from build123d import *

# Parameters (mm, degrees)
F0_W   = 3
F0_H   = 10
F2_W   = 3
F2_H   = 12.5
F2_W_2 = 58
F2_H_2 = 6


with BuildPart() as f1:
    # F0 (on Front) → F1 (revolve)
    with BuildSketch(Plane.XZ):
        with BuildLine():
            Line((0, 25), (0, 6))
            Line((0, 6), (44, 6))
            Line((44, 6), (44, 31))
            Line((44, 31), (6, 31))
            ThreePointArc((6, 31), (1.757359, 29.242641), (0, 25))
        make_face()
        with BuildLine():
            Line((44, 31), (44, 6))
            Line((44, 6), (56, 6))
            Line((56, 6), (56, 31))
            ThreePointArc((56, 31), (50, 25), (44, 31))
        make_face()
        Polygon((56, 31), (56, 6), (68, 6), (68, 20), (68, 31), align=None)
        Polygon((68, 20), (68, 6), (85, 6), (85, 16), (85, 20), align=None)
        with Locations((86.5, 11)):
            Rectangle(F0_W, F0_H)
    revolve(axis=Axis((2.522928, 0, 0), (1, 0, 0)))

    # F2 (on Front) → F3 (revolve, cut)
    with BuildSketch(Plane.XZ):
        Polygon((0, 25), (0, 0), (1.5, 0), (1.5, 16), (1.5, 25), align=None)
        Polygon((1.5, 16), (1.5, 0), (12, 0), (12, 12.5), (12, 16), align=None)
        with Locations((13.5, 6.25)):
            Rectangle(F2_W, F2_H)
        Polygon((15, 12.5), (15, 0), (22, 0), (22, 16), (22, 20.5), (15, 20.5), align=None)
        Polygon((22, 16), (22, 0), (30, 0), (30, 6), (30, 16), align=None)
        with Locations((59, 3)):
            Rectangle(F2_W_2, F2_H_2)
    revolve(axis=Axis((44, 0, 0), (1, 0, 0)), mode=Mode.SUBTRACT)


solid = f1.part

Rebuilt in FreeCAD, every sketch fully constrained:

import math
import FreeCAD as App
import Part
import Sketcher
from FreeCAD import Vector

doc = App.newDocument("Part")
body = doc.addObject("PartDesign::Body", "Body")

sketch1 = body.newObject("Sketcher::SketchObject", "Sketch")
sketch1.AttachmentSupport = (doc.getObject("XZ_Plane"), [""])
sketch1.MapMode = "FlatFace"
sketch1.addGeometry([
    Part.LineSegment(Vector(0, 25, 0), Vector(0, 6, 0)),
    Part.LineSegment(Vector(0, 6, 0), Vector(88, 6, 0)),
    Part.LineSegment(Vector(88, 6, 0), Vector(88, 16, 0)),
    Part.LineSegment(Vector(88, 16, 0), Vector(85, 16, 0)),
    Part.LineSegment(Vector(85, 16, 0), Vector(85, 20, 0)),
    Part.LineSegment(Vector(85, 20, 0), Vector(68, 20, 0)),
    Part.LineSegment(Vector(68, 20, 0), Vector(68, 31, 0)),
    Part.LineSegment(Vector(68, 31, 0), Vector(56, 31, 0)),
    Part.ArcOfCircle(Part.Circle(Vector(50, 31, 0), Vector(0, 0, 1), 6), math.radians(180), math.radians(360)),
    Part.LineSegment(Vector(44, 31, 0), Vector(6, 31, 0)),
    Part.ArcOfCircle(Part.Circle(Vector(5.999999, 25.000001, 0), Vector(0, 0, 1), 5.999999), math.radians(89.99999), math.radians(180.00001)),
], False)
sketch1.addConstraint([
    Sketcher.Constraint("Coincident", 0, 2, 1, 1),
    Sketcher.Constraint("Coincident", 1, 2, 2, 1),
    Sketcher.Constraint("Coincident", 2, 2, 3, 1),
    Sketcher.Constraint("Coincident", 3, 2, 4, 1),
    Sketcher.Constraint("Coincident", 4, 2, 5, 1),
    Sketcher.Constraint("Coincident", 5, 2, 6, 1),
    Sketcher.Constraint("Coincident", 6, 2, 7, 1),
    Sketcher.Constraint("Coincident", 7, 2, 8, 2),
    Sketcher.Constraint("Coincident", 8, 1, 9, 1),
    Sketcher.Constraint("Tangent", 9, 2, 10, 1),
    Sketcher.Constraint("Tangent", 10, 2, 0, 1),
    Sketcher.Constraint("Vertical", 0),
    Sketcher.Constraint("Horizontal", 1),
    Sketcher.Constraint("Vertical", 2),
    Sketcher.Constraint("Horizontal", 3),
    Sketcher.Constraint("Vertical", 4),
    Sketcher.Constraint("Horizontal", 5),
    Sketcher.Constraint("Vertical", 6),
    Sketcher.Constraint("Horizontal", 7),
    Sketcher.Constraint("Horizontal", 9),
    Sketcher.Constraint("Equal", 8, 10),
    Sketcher.Constraint("PointOnObject", 0, 2, -2),
    Sketcher.Constraint("Horizontal", 8, 3, 6, 2),
    Sketcher.Constraint("Horizontal", 7, 2, 8, 1),
    Sketcher.Constraint("Radius", 8, 6.0),
    Sketcher.Constraint("DistanceX", 1, 1, 1, 2, 88.0),
    Sketcher.Constraint("DistanceX", 3, 2, 3, 1, 3.0),
    Sketcher.Constraint("DistanceX", 5, 2, 5, 1, 17.0),
    Sketcher.Constraint("DistanceX", 7, 2, 7, 1, 12.0),
    Sketcher.Constraint("DistanceY", 0, 2, 0, 1, 19.0),
    Sketcher.Constraint("DistanceY", 2, 1, 2, 2, 10.0),
    Sketcher.Constraint("DistanceY", 4, 1, 4, 2, 4.0),
    Sketcher.Constraint("DistanceY", -1, 1, 8, 3, 31.0),
])
revolution = body.newObject("PartDesign::Revolution", "Revolution")
revolution.Profile = sketch1
revolution.ReferenceAxis = (sketch1, ["H_Axis"])
revolution.Angle = 360

sketch2 = body.newObject("Sketcher::SketchObject", "Sketch001")
sketch2.AttachmentSupport = (doc.getObject("XZ_Plane"), [""])
sketch2.MapMode = "FlatFace"
sketch2.addGeometry([
    Part.LineSegment(Vector(0, 25, 0), Vector(0, 0, 0)),
    Part.LineSegment(Vector(0, 0, 0), Vector(88, 0, 0)),
    Part.LineSegment(Vector(88, 0, 0), Vector(88, 6, 0)),
    Part.LineSegment(Vector(88, 6, 0), Vector(30, 6, 0)),
    Part.LineSegment(Vector(30, 6, 0), Vector(30, 16, 0)),
    Part.LineSegment(Vector(30, 16, 0), Vector(22, 16, 0)),
    Part.LineSegment(Vector(22, 16, 0), Vector(22, 20.5, 0)),
    Part.LineSegment(Vector(22, 20.5, 0), Vector(15, 20.5, 0)),
    Part.LineSegment(Vector(15, 20.5, 0), Vector(15, 12.5, 0)),
    Part.LineSegment(Vector(15, 12.5, 0), Vector(12, 12.5, 0)),
    Part.LineSegment(Vector(12, 12.5, 0), Vector(12, 16, 0)),
    Part.LineSegment(Vector(12, 16, 0), Vector(1.5, 16, 0)),
    Part.LineSegment(Vector(1.5, 16, 0), Vector(1.5, 25, 0)),
    Part.LineSegment(Vector(1.5, 25, 0), Vector(0, 25, 0)),
], False)
sketch2.addConstraint([
    Sketcher.Constraint("Coincident", 0, 2, 1, 1),
    Sketcher.Constraint("Coincident", 1, 2, 2, 1),
    Sketcher.Constraint("Coincident", 2, 2, 3, 1),
    Sketcher.Constraint("Coincident", 3, 2, 4, 1),
    Sketcher.Constraint("Coincident", 4, 2, 5, 1),
    Sketcher.Constraint("Coincident", 5, 2, 6, 1),
    Sketcher.Constraint("Coincident", 6, 2, 7, 1),
    Sketcher.Constraint("Coincident", 7, 2, 8, 1),
    Sketcher.Constraint("Coincident", 8, 2, 9, 1),
    Sketcher.Constraint("Coincident", 9, 2, 10, 1),
    Sketcher.Constraint("Coincident", 10, 2, 11, 1),
    Sketcher.Constraint("Coincident", 11, 2, 12, 1),
    Sketcher.Constraint("Coincident", 12, 2, 13, 1),
    Sketcher.Constraint("Coincident", 13, 2, 0, 1),
    Sketcher.Constraint("Vertical", 0),
    Sketcher.Constraint("Horizontal", 1),
    Sketcher.Constraint("Vertical", 2),
    Sketcher.Constraint("Horizontal", 3),
    Sketcher.Constraint("Vertical", 4),
    Sketcher.Constraint("Horizontal", 5),
    Sketcher.Constraint("Vertical", 6),
    Sketcher.Constraint("Horizontal", 7),
    Sketcher.Constraint("Vertical", 8),
    Sketcher.Constraint("Horizontal", 9),
    Sketcher.Constraint("Vertical", 10),
    Sketcher.Constraint("Horizontal", 11),
    Sketcher.Constraint("Vertical", 12),
    Sketcher.Constraint("Horizontal", 13),
    Sketcher.Constraint("Coincident", 0, 2, -1, 1),
    Sketcher.Constraint("Horizontal", 5, 2, 10, 2),
    Sketcher.Constraint("Equal", 5, 8),
    Sketcher.Constraint("DistanceX", 1, 1, 1, 2, 88.0),
    Sketcher.Constraint("DistanceX", 3, 2, 3, 1, 58.0),
    Sketcher.Constraint("DistanceX", 5, 2, 5, 1, 8.0),
    Sketcher.Constraint("DistanceX", 7, 2, 7, 1, 7.0),
    Sketcher.Constraint("DistanceX", 9, 2, 9, 1, 3.0),
    Sketcher.Constraint("DistanceY", 0, 2, 0, 1, 25.0),
    Sketcher.Constraint("DistanceY", 2, 1, 2, 2, 6.0),
    Sketcher.Constraint("DistanceY", 4, 1, 4, 2, 10.0),
    Sketcher.Constraint("DistanceX", 11, 2, 11, 1, 10.5),
    Sketcher.Constraint("DistanceY", 6, 1, 6, 2, 4.5),
])
groove = body.newObject("PartDesign::Groove", "Groove")
groove.Profile = sketch2
groove.ReferenceAxis = (sketch2, ["H_Axis"])
groove.Angle = 360

doc.recompute()
